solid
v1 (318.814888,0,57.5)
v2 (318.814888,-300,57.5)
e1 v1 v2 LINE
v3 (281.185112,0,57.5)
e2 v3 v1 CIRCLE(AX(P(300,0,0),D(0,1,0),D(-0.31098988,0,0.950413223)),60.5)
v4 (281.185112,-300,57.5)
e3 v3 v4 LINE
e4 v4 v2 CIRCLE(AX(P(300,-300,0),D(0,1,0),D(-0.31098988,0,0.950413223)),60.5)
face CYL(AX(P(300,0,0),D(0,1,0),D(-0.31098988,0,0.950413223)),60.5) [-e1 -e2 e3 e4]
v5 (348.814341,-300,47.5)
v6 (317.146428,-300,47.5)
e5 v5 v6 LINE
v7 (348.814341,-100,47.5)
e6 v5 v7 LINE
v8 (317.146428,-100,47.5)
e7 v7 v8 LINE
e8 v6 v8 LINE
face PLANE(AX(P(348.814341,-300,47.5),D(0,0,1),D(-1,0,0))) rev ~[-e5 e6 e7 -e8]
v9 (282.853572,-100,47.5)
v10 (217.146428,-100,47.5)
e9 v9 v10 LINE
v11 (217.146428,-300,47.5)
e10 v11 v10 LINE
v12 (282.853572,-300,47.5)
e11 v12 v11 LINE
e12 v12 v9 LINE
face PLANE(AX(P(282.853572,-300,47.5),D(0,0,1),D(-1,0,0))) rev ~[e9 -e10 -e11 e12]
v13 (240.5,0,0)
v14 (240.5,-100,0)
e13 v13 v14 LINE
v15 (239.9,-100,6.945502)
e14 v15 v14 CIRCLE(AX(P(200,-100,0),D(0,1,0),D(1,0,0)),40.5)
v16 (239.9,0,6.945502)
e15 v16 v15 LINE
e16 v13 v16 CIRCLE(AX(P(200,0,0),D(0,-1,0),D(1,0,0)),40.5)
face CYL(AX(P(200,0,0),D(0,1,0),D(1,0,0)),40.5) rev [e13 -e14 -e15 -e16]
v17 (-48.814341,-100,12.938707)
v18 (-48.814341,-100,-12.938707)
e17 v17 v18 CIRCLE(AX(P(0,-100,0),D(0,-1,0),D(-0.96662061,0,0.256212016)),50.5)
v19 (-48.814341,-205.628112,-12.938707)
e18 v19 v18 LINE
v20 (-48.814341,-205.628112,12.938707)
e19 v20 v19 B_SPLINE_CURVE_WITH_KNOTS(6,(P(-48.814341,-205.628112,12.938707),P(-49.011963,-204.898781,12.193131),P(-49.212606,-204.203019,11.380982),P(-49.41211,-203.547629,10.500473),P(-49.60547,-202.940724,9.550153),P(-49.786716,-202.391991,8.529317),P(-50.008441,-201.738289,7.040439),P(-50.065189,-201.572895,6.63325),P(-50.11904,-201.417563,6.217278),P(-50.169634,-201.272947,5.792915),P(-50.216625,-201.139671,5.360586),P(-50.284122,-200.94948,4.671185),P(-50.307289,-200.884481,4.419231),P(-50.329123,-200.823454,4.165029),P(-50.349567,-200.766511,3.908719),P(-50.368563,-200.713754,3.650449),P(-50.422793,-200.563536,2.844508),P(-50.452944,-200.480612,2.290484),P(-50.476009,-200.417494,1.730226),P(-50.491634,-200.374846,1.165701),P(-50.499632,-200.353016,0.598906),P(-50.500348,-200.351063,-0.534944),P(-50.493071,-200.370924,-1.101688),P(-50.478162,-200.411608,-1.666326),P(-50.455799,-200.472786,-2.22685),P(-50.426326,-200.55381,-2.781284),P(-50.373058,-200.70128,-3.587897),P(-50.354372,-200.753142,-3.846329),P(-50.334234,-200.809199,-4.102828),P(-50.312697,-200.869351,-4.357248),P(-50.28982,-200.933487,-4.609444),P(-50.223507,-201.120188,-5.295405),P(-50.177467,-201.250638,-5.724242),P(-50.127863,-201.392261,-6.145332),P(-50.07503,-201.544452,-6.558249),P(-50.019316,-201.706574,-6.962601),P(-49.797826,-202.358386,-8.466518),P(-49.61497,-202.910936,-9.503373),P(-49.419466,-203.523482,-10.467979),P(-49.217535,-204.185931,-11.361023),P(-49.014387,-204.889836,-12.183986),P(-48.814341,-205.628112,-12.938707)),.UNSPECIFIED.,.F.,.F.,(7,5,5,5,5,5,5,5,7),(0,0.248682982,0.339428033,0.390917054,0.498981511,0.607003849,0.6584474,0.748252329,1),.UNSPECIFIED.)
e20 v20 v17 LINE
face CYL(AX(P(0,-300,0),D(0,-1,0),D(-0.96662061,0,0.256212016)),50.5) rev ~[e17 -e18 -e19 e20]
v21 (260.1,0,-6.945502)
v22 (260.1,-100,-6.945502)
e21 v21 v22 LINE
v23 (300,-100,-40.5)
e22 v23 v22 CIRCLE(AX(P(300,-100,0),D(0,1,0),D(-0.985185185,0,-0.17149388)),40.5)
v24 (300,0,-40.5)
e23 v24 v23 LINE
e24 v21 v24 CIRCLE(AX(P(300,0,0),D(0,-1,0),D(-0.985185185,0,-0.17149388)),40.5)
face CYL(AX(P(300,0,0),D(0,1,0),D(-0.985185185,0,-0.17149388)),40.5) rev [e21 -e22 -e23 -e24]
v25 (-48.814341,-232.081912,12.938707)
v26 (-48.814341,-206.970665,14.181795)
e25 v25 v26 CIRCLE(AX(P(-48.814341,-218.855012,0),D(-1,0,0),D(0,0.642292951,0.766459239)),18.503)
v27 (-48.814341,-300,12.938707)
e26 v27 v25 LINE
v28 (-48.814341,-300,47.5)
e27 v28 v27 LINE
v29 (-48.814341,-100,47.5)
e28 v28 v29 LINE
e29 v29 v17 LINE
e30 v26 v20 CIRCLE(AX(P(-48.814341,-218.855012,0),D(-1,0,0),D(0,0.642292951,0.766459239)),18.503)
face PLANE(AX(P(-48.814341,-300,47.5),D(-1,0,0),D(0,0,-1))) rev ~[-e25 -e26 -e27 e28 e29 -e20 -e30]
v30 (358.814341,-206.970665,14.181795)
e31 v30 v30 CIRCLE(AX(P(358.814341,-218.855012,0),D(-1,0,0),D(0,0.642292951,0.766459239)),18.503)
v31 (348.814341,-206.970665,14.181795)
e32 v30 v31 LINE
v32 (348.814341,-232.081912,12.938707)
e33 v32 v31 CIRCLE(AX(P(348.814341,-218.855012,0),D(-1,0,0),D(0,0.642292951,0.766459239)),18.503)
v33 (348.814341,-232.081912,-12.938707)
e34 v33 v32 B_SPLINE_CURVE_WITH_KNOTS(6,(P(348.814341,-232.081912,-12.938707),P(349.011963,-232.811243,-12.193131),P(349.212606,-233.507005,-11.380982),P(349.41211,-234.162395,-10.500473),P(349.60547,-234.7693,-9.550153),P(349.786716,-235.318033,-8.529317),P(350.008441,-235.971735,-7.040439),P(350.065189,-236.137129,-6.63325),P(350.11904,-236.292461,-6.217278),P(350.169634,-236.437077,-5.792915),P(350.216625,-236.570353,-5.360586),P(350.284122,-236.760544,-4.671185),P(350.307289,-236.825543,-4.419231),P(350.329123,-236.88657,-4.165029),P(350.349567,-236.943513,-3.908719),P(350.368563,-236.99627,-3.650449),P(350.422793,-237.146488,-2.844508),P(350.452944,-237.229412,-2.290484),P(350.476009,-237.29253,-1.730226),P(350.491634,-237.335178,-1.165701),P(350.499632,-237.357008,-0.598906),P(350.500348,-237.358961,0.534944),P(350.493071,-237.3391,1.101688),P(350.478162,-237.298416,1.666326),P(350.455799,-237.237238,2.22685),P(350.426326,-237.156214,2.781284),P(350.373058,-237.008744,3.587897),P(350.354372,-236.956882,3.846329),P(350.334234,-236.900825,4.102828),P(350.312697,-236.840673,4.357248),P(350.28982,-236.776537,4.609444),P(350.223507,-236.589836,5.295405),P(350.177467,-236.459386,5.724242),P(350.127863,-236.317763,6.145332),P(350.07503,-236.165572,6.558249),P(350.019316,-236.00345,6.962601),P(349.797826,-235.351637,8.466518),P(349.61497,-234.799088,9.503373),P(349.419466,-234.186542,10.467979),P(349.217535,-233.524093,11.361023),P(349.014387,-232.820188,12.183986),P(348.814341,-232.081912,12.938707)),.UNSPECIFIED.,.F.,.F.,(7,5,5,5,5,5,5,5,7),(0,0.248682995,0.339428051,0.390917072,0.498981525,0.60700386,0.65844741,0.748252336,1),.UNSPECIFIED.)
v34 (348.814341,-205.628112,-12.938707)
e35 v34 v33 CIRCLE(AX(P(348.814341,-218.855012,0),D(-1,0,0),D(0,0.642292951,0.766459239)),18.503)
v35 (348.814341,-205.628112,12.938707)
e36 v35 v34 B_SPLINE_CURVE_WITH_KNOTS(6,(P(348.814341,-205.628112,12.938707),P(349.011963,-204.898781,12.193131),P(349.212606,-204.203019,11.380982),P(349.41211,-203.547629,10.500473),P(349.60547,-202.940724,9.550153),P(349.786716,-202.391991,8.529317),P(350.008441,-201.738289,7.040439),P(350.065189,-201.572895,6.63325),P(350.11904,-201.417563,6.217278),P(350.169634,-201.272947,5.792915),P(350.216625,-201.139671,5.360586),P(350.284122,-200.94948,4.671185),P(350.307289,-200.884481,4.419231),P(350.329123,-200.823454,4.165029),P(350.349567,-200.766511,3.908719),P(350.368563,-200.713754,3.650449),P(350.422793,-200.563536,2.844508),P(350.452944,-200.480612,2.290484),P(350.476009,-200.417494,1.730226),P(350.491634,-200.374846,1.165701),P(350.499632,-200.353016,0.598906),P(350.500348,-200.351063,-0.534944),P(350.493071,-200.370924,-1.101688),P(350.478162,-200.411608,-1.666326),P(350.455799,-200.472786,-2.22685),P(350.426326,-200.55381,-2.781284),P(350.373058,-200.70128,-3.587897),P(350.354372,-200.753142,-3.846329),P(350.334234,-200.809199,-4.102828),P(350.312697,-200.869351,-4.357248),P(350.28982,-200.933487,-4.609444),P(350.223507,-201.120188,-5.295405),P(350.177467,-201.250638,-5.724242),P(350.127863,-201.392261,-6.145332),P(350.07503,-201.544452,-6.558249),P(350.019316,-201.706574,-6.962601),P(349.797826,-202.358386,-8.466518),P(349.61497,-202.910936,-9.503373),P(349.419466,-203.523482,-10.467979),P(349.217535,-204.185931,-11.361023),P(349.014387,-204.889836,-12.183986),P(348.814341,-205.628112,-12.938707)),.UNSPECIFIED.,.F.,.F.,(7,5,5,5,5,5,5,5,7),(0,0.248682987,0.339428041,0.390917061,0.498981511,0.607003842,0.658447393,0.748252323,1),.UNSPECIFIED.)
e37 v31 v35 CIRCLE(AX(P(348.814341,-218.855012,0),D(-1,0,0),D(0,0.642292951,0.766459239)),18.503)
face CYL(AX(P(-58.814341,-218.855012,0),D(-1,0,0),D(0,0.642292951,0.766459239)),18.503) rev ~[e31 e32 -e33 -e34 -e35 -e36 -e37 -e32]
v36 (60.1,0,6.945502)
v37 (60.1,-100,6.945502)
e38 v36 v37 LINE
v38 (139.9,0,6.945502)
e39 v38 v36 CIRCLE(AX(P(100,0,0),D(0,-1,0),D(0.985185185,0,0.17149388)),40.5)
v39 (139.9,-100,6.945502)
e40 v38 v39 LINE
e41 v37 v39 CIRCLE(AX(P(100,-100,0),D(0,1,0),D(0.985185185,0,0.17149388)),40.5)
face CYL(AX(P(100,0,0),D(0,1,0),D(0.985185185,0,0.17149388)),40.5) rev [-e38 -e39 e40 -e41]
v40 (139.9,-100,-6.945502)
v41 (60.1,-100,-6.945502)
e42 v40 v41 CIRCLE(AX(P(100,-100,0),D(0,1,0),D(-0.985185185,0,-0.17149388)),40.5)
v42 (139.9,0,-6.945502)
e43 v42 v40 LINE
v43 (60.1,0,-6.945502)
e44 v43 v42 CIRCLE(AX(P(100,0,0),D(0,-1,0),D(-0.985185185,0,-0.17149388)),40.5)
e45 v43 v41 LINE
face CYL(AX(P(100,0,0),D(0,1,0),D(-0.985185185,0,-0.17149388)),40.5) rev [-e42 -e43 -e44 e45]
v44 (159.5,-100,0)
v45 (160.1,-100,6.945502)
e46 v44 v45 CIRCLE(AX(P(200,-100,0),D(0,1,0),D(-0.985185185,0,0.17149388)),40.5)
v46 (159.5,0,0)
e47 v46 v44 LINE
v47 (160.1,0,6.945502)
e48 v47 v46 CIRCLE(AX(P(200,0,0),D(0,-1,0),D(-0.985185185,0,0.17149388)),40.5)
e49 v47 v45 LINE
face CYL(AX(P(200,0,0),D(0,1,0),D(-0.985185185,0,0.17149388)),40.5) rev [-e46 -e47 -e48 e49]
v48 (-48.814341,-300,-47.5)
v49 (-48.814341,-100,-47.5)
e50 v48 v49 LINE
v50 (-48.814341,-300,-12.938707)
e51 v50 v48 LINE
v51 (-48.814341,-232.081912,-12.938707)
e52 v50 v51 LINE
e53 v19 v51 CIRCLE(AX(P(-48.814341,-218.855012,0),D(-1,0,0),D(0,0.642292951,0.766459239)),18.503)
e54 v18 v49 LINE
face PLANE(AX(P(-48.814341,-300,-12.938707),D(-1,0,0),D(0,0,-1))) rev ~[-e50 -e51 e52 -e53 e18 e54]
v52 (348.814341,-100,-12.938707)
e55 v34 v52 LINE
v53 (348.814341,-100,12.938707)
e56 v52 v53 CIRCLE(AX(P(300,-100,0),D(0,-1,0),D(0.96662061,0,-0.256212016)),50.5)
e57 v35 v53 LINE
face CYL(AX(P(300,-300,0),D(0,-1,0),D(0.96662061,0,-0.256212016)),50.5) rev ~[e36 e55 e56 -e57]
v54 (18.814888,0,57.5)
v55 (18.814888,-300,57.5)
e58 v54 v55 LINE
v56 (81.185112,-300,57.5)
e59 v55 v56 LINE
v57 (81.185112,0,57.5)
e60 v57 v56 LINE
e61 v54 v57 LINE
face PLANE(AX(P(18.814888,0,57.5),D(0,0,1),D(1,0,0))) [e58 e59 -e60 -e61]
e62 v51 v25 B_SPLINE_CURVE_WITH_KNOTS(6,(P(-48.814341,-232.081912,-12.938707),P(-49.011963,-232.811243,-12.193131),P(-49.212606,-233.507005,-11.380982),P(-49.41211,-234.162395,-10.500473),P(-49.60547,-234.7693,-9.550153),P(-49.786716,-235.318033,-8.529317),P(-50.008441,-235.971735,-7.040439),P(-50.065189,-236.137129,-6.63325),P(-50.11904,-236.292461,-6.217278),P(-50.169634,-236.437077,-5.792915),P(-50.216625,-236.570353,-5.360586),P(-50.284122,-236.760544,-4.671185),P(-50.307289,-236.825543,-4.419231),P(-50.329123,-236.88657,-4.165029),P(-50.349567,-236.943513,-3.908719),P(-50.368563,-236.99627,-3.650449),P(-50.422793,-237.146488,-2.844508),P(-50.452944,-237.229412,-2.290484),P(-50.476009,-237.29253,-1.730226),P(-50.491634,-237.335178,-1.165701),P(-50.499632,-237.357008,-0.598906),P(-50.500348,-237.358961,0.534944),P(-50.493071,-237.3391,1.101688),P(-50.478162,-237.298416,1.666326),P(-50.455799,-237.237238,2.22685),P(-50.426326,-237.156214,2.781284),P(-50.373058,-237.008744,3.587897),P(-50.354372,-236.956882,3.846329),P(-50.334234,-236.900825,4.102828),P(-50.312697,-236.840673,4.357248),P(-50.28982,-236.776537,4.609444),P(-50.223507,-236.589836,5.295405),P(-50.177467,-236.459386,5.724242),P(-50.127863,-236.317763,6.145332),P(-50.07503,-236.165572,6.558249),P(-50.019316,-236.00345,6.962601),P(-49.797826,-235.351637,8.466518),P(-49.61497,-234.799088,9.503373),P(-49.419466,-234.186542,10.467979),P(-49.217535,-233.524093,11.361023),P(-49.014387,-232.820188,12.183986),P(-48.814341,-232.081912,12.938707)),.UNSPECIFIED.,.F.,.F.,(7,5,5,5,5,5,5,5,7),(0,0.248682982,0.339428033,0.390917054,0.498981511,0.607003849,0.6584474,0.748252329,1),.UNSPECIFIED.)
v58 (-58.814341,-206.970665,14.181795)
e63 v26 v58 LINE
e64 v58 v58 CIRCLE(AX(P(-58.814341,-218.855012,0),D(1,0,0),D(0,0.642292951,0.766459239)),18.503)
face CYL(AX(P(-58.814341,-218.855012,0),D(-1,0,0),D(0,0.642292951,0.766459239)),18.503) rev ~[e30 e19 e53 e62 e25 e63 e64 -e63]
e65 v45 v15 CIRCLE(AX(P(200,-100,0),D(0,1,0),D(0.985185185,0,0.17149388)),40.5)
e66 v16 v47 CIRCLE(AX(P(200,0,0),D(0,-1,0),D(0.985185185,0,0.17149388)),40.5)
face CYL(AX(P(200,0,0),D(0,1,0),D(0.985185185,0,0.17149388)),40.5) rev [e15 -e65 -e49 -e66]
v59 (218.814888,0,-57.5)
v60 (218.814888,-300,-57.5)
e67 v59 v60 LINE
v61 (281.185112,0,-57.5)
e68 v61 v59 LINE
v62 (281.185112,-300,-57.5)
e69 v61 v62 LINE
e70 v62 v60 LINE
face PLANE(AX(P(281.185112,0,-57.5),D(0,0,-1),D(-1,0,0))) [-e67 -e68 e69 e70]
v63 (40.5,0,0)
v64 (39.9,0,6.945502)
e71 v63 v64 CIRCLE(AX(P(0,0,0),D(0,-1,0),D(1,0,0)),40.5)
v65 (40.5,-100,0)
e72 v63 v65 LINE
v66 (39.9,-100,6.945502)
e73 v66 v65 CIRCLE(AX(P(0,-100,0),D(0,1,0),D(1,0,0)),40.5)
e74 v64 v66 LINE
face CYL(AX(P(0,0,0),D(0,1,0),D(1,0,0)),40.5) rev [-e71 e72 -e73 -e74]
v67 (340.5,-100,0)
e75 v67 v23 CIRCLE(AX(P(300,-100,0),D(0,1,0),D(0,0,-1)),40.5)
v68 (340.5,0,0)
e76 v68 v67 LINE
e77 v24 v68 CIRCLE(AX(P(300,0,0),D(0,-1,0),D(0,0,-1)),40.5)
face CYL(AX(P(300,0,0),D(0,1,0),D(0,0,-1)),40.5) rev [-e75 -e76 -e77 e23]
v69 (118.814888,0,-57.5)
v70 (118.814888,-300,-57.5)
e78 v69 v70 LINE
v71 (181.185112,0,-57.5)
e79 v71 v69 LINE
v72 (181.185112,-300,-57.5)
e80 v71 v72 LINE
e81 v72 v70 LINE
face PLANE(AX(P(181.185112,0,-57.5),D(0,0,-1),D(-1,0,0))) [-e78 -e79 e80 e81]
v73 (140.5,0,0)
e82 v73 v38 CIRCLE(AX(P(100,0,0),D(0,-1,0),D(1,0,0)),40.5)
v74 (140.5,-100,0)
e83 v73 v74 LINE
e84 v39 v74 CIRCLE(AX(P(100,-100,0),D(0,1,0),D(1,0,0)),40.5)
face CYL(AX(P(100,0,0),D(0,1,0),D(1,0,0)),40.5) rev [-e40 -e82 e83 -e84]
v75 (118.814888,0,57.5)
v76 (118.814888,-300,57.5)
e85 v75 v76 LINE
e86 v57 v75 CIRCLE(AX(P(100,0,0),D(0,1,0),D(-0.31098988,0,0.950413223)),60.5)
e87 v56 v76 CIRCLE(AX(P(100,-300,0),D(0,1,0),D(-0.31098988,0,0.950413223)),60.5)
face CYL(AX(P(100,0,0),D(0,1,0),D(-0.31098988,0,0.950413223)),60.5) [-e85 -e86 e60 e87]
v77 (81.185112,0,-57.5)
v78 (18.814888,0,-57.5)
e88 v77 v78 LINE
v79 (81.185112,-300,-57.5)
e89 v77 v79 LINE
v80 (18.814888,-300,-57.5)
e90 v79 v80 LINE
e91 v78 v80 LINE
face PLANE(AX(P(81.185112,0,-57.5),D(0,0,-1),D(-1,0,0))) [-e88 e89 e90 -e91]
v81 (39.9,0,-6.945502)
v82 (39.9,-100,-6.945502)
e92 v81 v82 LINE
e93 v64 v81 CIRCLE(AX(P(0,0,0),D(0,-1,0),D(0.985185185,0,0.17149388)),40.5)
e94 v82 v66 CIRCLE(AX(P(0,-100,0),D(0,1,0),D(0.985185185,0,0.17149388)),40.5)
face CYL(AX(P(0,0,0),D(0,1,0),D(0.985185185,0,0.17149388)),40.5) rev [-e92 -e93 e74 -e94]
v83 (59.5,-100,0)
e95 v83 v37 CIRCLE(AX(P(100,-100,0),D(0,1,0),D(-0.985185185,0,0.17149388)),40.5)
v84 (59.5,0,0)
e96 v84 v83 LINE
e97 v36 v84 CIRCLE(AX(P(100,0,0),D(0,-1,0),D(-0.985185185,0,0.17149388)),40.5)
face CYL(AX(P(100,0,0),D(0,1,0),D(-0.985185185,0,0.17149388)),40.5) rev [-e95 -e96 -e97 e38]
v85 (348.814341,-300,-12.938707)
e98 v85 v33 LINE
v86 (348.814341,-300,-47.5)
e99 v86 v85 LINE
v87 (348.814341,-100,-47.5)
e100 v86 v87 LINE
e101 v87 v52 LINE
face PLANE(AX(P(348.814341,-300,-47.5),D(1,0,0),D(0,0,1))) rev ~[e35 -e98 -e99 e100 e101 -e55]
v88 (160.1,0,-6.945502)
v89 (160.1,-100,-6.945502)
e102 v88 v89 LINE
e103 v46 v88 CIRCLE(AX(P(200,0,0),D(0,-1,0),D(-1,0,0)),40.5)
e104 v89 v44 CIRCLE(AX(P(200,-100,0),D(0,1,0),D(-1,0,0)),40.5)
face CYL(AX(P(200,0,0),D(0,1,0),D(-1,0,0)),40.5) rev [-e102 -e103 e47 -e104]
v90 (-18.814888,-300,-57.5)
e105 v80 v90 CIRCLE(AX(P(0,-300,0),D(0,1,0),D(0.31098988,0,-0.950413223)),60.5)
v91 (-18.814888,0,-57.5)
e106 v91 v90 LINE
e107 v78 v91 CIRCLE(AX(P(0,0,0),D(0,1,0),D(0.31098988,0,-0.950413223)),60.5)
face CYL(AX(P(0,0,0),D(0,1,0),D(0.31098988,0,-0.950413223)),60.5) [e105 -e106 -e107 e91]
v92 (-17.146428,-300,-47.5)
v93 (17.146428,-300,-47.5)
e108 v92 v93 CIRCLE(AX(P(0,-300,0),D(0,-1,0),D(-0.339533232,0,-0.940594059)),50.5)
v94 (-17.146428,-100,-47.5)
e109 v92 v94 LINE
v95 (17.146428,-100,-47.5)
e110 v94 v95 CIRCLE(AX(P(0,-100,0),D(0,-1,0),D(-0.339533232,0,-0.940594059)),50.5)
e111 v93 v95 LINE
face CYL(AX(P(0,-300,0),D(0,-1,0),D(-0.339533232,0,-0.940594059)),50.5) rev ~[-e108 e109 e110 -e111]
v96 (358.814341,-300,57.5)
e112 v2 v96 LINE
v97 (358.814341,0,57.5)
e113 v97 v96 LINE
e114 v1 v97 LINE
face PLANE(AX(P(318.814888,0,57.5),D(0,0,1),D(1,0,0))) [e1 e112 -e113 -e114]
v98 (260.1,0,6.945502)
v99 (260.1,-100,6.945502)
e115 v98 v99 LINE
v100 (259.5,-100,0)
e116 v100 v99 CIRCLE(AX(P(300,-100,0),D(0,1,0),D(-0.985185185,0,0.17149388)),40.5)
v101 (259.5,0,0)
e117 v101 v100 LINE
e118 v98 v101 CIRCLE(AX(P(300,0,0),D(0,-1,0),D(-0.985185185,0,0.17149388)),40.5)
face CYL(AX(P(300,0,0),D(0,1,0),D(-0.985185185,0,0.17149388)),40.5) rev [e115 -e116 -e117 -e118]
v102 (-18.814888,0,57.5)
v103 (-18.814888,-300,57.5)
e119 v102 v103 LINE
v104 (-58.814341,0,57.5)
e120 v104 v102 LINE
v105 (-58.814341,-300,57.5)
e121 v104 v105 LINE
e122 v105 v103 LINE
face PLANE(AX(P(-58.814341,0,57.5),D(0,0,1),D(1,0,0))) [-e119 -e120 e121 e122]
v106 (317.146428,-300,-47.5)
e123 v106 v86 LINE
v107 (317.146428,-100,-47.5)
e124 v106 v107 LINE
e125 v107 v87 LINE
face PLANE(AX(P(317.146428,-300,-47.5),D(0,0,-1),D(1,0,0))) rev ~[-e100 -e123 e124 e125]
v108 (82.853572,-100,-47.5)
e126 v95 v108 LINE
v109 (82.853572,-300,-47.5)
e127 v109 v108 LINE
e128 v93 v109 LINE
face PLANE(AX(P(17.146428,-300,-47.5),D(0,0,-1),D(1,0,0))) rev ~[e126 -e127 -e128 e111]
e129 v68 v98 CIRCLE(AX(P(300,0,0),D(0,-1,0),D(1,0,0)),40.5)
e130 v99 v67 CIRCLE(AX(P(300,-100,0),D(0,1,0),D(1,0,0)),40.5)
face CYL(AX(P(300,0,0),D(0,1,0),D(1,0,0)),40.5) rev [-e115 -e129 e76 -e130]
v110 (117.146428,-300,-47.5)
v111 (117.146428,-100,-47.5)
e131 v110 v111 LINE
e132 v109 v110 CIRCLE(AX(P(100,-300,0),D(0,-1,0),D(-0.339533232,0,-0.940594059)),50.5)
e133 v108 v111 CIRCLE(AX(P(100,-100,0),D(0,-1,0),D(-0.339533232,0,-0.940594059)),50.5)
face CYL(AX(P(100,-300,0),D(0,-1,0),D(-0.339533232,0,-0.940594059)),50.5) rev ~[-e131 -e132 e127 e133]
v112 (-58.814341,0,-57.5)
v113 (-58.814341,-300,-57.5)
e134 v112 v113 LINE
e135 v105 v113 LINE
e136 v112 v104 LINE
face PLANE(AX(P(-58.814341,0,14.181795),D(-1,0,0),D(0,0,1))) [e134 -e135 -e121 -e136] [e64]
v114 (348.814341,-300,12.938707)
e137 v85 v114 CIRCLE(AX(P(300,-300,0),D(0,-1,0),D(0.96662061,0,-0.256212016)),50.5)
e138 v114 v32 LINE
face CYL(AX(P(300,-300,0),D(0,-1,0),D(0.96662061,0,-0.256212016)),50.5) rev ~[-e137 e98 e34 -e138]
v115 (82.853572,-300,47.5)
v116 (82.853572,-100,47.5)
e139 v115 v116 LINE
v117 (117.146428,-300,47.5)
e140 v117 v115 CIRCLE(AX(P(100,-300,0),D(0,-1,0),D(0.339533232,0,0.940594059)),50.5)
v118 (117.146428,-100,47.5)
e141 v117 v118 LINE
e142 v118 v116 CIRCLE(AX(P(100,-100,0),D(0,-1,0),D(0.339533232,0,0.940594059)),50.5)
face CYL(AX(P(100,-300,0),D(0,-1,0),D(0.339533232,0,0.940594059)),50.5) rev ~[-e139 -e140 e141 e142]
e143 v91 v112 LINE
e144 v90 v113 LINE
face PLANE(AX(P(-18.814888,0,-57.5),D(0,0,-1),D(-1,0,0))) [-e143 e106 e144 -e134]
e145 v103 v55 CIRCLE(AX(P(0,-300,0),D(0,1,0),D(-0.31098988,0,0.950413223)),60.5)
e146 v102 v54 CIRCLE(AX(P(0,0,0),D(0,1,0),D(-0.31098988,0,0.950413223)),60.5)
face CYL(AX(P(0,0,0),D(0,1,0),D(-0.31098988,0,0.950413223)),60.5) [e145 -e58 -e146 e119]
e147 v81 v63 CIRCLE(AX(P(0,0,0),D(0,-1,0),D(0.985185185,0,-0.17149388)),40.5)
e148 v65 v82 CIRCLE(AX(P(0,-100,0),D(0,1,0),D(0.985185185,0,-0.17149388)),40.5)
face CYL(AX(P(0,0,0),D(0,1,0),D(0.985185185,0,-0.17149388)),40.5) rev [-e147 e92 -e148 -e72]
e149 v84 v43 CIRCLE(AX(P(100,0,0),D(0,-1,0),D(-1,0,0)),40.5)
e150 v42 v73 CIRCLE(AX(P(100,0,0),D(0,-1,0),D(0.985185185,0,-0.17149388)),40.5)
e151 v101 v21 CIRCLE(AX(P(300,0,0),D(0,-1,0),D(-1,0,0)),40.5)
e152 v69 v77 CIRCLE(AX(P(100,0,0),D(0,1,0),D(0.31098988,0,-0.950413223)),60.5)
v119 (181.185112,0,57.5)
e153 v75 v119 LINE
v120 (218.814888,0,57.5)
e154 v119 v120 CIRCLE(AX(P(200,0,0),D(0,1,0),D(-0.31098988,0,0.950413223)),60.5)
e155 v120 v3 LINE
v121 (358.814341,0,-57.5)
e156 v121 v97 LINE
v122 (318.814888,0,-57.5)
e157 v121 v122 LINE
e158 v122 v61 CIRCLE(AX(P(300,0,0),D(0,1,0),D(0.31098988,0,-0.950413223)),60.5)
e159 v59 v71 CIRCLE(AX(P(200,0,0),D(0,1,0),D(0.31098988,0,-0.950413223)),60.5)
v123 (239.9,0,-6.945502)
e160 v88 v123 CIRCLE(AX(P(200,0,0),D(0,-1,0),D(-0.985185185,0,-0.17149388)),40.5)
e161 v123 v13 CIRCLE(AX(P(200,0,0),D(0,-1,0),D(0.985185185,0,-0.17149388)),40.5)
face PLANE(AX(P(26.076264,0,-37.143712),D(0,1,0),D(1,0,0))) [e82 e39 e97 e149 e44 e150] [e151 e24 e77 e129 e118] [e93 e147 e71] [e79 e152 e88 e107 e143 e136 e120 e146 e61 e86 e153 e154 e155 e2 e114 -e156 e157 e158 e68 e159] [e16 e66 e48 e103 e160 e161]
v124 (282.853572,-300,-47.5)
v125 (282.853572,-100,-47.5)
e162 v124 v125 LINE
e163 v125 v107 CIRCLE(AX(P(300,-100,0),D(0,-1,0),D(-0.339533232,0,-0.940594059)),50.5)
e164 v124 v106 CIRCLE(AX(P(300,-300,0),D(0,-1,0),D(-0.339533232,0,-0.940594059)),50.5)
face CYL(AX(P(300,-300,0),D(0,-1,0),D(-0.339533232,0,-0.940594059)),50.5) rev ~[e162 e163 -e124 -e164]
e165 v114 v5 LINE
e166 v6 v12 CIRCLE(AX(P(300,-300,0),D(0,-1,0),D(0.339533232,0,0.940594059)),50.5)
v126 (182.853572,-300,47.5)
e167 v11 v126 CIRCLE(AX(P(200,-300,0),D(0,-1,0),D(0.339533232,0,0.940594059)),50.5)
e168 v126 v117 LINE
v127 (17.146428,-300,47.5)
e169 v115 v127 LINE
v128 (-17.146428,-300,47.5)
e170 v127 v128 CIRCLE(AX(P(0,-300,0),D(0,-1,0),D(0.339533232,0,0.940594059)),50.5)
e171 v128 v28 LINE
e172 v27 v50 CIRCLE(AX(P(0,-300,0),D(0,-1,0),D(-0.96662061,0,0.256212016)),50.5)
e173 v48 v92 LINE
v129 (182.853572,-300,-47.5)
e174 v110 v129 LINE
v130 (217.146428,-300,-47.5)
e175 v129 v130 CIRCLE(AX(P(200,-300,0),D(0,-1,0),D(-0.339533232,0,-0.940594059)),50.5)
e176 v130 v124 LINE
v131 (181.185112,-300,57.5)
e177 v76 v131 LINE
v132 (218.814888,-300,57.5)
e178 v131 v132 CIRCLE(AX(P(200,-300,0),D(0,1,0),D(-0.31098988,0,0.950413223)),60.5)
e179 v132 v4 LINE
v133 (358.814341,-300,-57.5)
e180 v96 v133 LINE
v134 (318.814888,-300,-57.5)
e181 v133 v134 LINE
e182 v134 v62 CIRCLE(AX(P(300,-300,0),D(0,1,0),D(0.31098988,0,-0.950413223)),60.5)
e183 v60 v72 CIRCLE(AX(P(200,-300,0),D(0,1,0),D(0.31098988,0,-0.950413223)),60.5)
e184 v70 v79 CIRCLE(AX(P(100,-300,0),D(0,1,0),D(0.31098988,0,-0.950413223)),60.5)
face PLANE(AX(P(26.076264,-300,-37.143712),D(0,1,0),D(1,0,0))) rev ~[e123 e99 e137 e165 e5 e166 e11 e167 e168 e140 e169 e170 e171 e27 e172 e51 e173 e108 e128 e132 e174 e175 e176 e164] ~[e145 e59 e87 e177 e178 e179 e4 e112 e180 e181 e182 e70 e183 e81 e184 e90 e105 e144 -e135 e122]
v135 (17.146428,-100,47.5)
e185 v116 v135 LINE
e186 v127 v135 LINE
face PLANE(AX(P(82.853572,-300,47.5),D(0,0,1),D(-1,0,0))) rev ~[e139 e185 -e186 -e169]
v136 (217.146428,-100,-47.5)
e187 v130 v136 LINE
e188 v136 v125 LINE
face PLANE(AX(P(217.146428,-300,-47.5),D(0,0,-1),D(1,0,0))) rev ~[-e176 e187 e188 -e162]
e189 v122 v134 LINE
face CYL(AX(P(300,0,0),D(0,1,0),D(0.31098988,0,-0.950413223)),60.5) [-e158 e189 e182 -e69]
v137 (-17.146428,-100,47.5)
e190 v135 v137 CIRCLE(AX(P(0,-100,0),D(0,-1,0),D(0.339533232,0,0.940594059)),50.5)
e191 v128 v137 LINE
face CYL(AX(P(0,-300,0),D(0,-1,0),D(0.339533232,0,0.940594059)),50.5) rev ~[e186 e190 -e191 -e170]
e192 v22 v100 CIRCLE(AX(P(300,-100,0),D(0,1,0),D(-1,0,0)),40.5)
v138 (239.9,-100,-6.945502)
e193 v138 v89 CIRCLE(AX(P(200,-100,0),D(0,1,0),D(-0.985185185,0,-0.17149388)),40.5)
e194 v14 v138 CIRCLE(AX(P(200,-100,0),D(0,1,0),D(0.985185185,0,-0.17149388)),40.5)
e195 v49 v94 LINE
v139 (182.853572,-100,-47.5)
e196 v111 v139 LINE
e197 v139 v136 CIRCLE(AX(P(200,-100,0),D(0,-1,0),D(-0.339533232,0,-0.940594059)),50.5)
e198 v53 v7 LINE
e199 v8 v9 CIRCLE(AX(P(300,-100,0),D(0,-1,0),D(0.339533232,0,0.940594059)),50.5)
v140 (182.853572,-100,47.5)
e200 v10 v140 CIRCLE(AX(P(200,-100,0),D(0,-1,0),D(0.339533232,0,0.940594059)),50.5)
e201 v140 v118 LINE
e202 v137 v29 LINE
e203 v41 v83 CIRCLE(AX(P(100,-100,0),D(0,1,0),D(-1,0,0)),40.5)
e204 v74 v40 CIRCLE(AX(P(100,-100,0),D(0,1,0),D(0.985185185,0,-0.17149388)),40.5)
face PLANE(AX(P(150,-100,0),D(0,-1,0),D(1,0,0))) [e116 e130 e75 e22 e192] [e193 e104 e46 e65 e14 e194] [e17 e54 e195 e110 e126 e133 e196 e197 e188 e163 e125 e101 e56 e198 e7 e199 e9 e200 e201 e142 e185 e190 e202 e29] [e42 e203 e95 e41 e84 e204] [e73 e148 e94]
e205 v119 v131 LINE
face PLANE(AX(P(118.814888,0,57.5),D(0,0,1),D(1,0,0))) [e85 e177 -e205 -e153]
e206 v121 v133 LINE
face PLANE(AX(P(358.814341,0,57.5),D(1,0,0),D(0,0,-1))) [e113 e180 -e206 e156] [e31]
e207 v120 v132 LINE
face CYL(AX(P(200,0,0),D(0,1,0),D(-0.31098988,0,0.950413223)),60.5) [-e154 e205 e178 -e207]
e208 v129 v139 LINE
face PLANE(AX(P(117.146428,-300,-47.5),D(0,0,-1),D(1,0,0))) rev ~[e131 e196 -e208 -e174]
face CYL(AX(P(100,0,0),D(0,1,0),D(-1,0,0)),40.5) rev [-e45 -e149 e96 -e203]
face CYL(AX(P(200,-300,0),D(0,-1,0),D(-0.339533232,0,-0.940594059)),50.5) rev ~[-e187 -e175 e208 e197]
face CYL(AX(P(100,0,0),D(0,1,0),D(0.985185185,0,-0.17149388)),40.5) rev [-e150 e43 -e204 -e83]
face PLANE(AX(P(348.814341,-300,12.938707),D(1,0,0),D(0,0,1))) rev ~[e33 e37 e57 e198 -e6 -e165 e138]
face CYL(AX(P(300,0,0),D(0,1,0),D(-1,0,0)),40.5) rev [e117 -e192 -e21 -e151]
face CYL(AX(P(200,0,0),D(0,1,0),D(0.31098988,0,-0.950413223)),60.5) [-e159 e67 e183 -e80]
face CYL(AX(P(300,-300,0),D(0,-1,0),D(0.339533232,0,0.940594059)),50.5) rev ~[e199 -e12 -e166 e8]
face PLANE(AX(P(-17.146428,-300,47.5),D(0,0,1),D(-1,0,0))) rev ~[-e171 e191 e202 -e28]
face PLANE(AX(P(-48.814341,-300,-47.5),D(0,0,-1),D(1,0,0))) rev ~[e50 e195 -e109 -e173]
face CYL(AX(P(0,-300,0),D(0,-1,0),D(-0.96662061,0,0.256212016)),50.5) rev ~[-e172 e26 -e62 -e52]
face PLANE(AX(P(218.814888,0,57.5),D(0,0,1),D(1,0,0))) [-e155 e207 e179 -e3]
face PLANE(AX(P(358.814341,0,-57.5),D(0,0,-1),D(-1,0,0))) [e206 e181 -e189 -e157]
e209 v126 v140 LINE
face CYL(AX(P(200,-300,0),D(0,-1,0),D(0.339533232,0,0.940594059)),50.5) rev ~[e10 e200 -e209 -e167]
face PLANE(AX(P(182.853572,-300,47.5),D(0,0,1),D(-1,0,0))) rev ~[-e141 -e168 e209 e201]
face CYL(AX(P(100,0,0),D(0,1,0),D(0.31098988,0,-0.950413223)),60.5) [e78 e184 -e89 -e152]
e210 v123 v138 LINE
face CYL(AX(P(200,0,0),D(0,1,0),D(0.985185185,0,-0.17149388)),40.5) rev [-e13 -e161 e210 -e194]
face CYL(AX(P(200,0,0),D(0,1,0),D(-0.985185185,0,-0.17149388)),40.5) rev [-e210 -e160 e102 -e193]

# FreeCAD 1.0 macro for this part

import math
import FreeCAD as App
import Part
import Sketcher

doc = App.newDocument("Part")
body = doc.addObject("PartDesign::Body", "Body")

# Sketch on XZ plane
sketch1 = body.newObject("Sketcher::SketchObject", "Sketch")
sketch1.AttachmentSupport = (doc.getObject("XZ_Plane"), [""])
sketch1.MapMode = "FlatFace"
sketch1.addGeometry([
    Part.LineSegment(App.Vector(358.814341, 57.5, 0), App.Vector(358.814341, 14.181795, 0)),  # 0
    Part.ArcOfCircle(Part.Circle(App.Vector(300, 0, 0), App.Vector(0, 0, 1), 60.5), math.radians(0), math.radians(13.556837)),  # 1
    Part.ArcOfCircle(Part.Circle(App.Vector(300, 0, 0), App.Vector(0, 0, 1), 60.5), math.radians(-13.556837), math.radians(0)),  # 2
    Part.LineSegment(App.Vector(358.814341, -14.181795, 0), App.Vector(358.814341, -57.5, 0)),  # 3
    Part.LineSegment(App.Vector(358.814341, -57.5, 0), App.Vector(318.814888, -57.5, 0)),  # 4
    Part.ArcOfCircle(Part.Circle(App.Vector(300, 0, 0), App.Vector(0, 0, 1), 60.5), math.radians(-108.118895), math.radians(-71.881105)),  # 5
    Part.LineSegment(App.Vector(281.185112, -57.5, 0), App.Vector(218.814888, -57.5, 0)),  # 6
    Part.ArcOfCircle(Part.Circle(App.Vector(200, 0, 0), App.Vector(0, 0, 1), 60.5), math.radians(-108.118895), math.radians(-71.881105)),  # 7
    Part.LineSegment(App.Vector(181.185112, -57.5, 0), App.Vector(118.814888, -57.5, 0)),  # 8
    Part.ArcOfCircle(Part.Circle(App.Vector(100, 0, 0), App.Vector(0, 0, 1), 60.5), math.radians(-108.118895), math.radians(-71.881105)),  # 9
    Part.LineSegment(App.Vector(81.185112, -57.5, 0), App.Vector(18.814888, -57.5, 0)),  # 10
    Part.ArcOfCircle(Part.Circle(App.Vector(0, 0, 0), App.Vector(0, 0, 1), 60.5), math.radians(-108.118895), math.radians(-71.881105)),  # 11
    Part.LineSegment(App.Vector(-18.814888, -57.5, 0), App.Vector(-58.814341, -57.5, 0)),  # 12
    Part.LineSegment(App.Vector(-58.814341, -57.5, 0), App.Vector(-58.814341, -14.181795, 0)),  # 13
    Part.ArcOfCircle(Part.Circle(App.Vector(0, 0, 0), App.Vector(0, 0, 1), 60.5), math.radians(166.443163), math.radians(193.556837)),  # 14
    Part.LineSegment(App.Vector(-58.814341, 14.181795, 0), App.Vector(-58.814341, 57.5, 0)),  # 15
    Part.LineSegment(App.Vector(-58.814341, 57.5, 0), App.Vector(-18.814888, 57.5, 0)),  # 16
    Part.ArcOfCircle(Part.Circle(App.Vector(0, 0, 0), App.Vector(0, 0, 1), 60.5), math.radians(71.881105), math.radians(108.118895)),  # 17
    Part.LineSegment(App.Vector(18.814888, 57.5, 0), App.Vector(81.185112, 57.5, 0)),  # 18
    Part.ArcOfCircle(Part.Circle(App.Vector(100, 0, 0), App.Vector(0, 0, 1), 60.5), math.radians(71.881105), math.radians(108.118895)),  # 19
    Part.LineSegment(App.Vector(118.814888, 57.5, 0), App.Vector(181.185112, 57.5, 0)),  # 20
    Part.ArcOfCircle(Part.Circle(App.Vector(200, 0, 0), App.Vector(0, 0, 1), 60.5), math.radians(71.881105), math.radians(108.118895)),  # 21
    Part.LineSegment(App.Vector(218.814888, 57.5, 0), App.Vector(281.185112, 57.5, 0)),  # 22
    Part.ArcOfCircle(Part.Circle(App.Vector(300, 0, 0), App.Vector(0, 0, 1), 60.5), math.radians(71.881105), math.radians(108.118895)),  # 23
    Part.LineSegment(App.Vector(318.814888, 57.5, 0), App.Vector(358.814341, 57.5, 0)),  # 24
    Part.ArcOfCircle(Part.Circle(App.Vector(300, 0, 0), App.Vector(0, 0, 1), 40.5), math.radians(170.125312), math.radians(180)),  # 25
    Part.ArcOfCircle(Part.Circle(App.Vector(300, 0, 0), App.Vector(0, 0, 1), 40.5), math.radians(180), math.radians(189.874688)),  # 26
    Part.ArcOfCircle(Part.Circle(App.Vector(300, 0, 0), App.Vector(0, 0, 1), 40.5), math.radians(-170.125312), math.radians(-90)),  # 27
    Part.ArcOfCircle(Part.Circle(App.Vector(300, 0, 0), App.Vector(0, 0, 1), 40.5), math.radians(-90), math.radians(0)),  # 28
    Part.ArcOfCircle(Part.Circle(App.Vector(300, 0, 0), App.Vector(0, 0, 1), 40.5), math.radians(0), math.radians(170.125312)),  # 29
    Part.ArcOfCircle(Part.Circle(App.Vector(200, 0, 0), App.Vector(0, 0, 1), 40.5), math.radians(-9.874688), math.radians(0)),  # 30
    Part.ArcOfCircle(Part.Circle(App.Vector(200, 0, 0), App.Vector(0, 0, 1), 40.5), math.radians(0), math.radians(9.874688)),  # 31
    Part.ArcOfCircle(Part.Circle(App.Vector(200, 0, 0), App.Vector(0, 0, 1), 40.5), math.radians(9.874688), math.radians(170.125312)),  # 32
    Part.ArcOfCircle(Part.Circle(App.Vector(200, 0, 0), App.Vector(0, 0, 1), 40.5), math.radians(170.125312), math.radians(180)),  # 33
    Part.ArcOfCircle(Part.Circle(App.Vector(200, 0, 0), App.Vector(0, 0, 1), 40.5), math.radians(180), math.radians(189.874688)),  # 34
    Part.ArcOfCircle(Part.Circle(App.Vector(200, 0, 0), App.Vector(0, 0, 1), 40.5), math.radians(-170.125312), math.radians(-9.874688)),  # 35
    Part.ArcOfCircle(Part.Circle(App.Vector(100, 0, 0), App.Vector(0, 0, 1), 40.5), math.radians(9.874688), math.radians(170.125312)),  # 36
    Part.ArcOfCircle(Part.Circle(App.Vector(100, 0, 0), App.Vector(0, 0, 1), 40.5), math.radians(170.125312), math.radians(180)),  # 37
    Part.ArcOfCircle(Part.Circle(App.Vector(100, 0, 0), App.Vector(0, 0, 1), 40.5), math.radians(180), math.radians(189.874688)),  # 38
    Part.ArcOfCircle(Part.Circle(App.Vector(100, 0, 0), App.Vector(0, 0, 1), 40.5), math.radians(-170.125312), math.radians(-9.874688)),  # 39
    Part.ArcOfCircle(Part.Circle(App.Vector(100, 0, 0), App.Vector(0, 0, 1), 40.5), math.radians(-9.874688), math.radians(0)),  # 40
    Part.ArcOfCircle(Part.Circle(App.Vector(100, 0, 0), App.Vector(0, 0, 1), 40.5), math.radians(0), math.radians(9.874688)),  # 41
    Part.ArcOfCircle(Part.Circle(App.Vector(0, 0, 0), App.Vector(0, 0, 1), 40.5), math.radians(-9.874688), math.radians(0)),  # 42
    Part.ArcOfCircle(Part.Circle(App.Vector(0, 0, 0), App.Vector(0, 0, 1), 40.5), math.radians(0), math.radians(9.874688)),  # 43
    Part.ArcOfCircle(Part.Circle(App.Vector(0, 0, 0), App.Vector(0, 0, 1), 40.5), math.radians(9.874688), math.radians(350.125312)),  # 44
], False)
sketch1.addConstraint([
    Sketcher.Constraint("Coincident", 0, 2, 1, 2),
    Sketcher.Constraint("Tangent", 1, 1, 2, 2),
    Sketcher.Constraint("Coincident", 2, 1, 3, 1),
    Sketcher.Constraint("Coincident", 3, 2, 4, 1),
    Sketcher.Constraint("Coincident", 4, 2, 5, 2),
    Sketcher.Constraint("Coincident", 5, 1, 6, 1),
    Sketcher.Constraint("Coincident", 6, 2, 7, 2),
    Sketcher.Constraint("Coincident", 7, 1, 8, 1),
    Sketcher.Constraint("Coincident", 8, 2, 9, 2),
    Sketcher.Constraint("Coincident", 9, 1, 10, 1),
    Sketcher.Constraint("Coincident", 10, 2, 11, 2),
    Sketcher.Constraint("Coincident", 11, 1, 12, 1),
    Sketcher.Constraint("Coincident", 12, 2, 13, 1),
    Sketcher.Constraint("Coincident", 13, 2, 14, 2),
    Sketcher.Constraint("Coincident", 14, 1, 15, 1),
    Sketcher.Constraint("Coincident", 15, 2, 16, 1),
    Sketcher.Constraint("Coincident", 16, 2, 17, 2),
    Sketcher.Constraint("Coincident", 17, 1, 18, 1),
    Sketcher.Constraint("Coincident", 18, 2, 19, 2),
    Sketcher.Constraint("Coincident", 19, 1, 20, 1),
    Sketcher.Constraint("Coincident", 20, 2, 21, 2),
    Sketcher.Constraint("Coincident", 21, 1, 22, 1),
    Sketcher.Constraint("Coincident", 22, 2, 23, 2),
    Sketcher.Constraint("Coincident", 23, 1, 24, 1),
    Sketcher.Constraint("Coincident", 24, 2, 0, 1),
    Sketcher.Constraint("Tangent", 25, 2, 26, 1),
    Sketcher.Constraint("Tangent", 26, 2, 27, 1),
    Sketcher.Constraint("Tangent", 27, 2, 28, 1),
    Sketcher.Constraint("Tangent", 28, 2, 29, 1),
    Sketcher.Constraint("Tangent", 29, 2, 25, 1),
    Sketcher.Constraint("Tangent", 30, 2, 31, 1),
    Sketcher.Constraint("Tangent", 31, 2, 32, 1),
    Sketcher.Constraint("Tangent", 32, 2, 33, 1),
    Sketcher.Constraint("Tangent", 33, 2, 34, 1),
    Sketcher.Constraint("Tangent", 34, 2, 35, 1),
    Sketcher.Constraint("Tangent", 35, 2, 30, 1),
    Sketcher.Constraint("Tangent", 36, 2, 37, 1),
    Sketcher.Constraint("Tangent", 37, 2, 38, 1),
    Sketcher.Constraint("Tangent", 38, 2, 39, 1),
    Sketcher.Constraint("Tangent", 39, 2, 40, 1),
    Sketcher.Constraint("Tangent", 40, 2, 41, 1),
    Sketcher.Constraint("Tangent", 41, 2, 36, 1),
    Sketcher.Constraint("Tangent", 42, 2, 43, 1),
    Sketcher.Constraint("Tangent", 43, 2, 44, 1),
    Sketcher.Constraint("Coincident", 44, 2, 42, 1),
    Sketcher.Constraint("Vertical", 0),
    Sketcher.Constraint("Vertical", 3),
    Sketcher.Constraint("Horizontal", 4),
    Sketcher.Constraint("Horizontal", 6),
    Sketcher.Constraint("Horizontal", 8),
    Sketcher.Constraint("Horizontal", 10),
    Sketcher.Constraint("Horizontal", 12),
    Sketcher.Constraint("Vertical", 13),
    Sketcher.Constraint("Vertical", 15),
    Sketcher.Constraint("Horizontal", 16),
    Sketcher.Constraint("Horizontal", 18),
    Sketcher.Constraint("Horizontal", 20),
    Sketcher.Constraint("Horizontal", 22),
    Sketcher.Constraint("Horizontal", 24),
    Sketcher.Constraint("Coincident", 11, 3, -1, 1),
    Sketcher.Constraint("Coincident", 14, 3, -1, 1),
    Sketcher.Constraint("Coincident", 17, 3, -1, 1),
    Sketcher.Constraint("Coincident", 42, 3, -1, 1),
    Sketcher.Constraint("Coincident", 5, 3, 1, 3),
    Sketcher.Constraint("Coincident", 19, 3, 9, 3),
    Sketcher.Constraint("Coincident", 21, 3, 7, 3),
    Sketcher.Constraint("Coincident", 23, 3, 1, 3),
    Sketcher.Constraint("Coincident", 25, 3, 1, 3),
    Sketcher.Constraint("Coincident", 27, 3, 1, 3),
    Sketcher.Constraint("Coincident", 30, 3, 7, 3),
    Sketcher.Constraint("Coincident", 32, 3, 7, 3),
    Sketcher.Constraint("Coincident", 36, 3, 9, 3),
    Sketcher.Constraint("Coincident", 38, 3, 9, 3),
    Sketcher.Constraint("Equal", 1, 2),
    Sketcher.Constraint("Equal", 2, 5),
    Sketcher.Constraint("Equal", 5, 7),
    Sketcher.Constraint("Equal", 7, 9),
    Sketcher.Constraint("Equal", 9, 11),
    Sketcher.Constraint("Equal", 11, 14),
    Sketcher.Constraint("Equal", 14, 17),
    Sketcher.Constraint("Equal", 17, 19),
    Sketcher.Constraint("Equal", 19, 21),
    Sketcher.Constraint("Equal", 21, 23),
    Sketcher.Constraint("Equal", 29, 30),
    Sketcher.Constraint("Equal", 32, 33),
    Sketcher.Constraint("Equal", 35, 36),
    Sketcher.Constraint("Equal", 38, 39),
    Sketcher.Constraint("Equal", 41, 42),
    Sketcher.Constraint("Equal", 42, 43),
    Sketcher.Constraint("Symmetric", 0, 2, 2, 1, -1),
    Sketcher.Constraint("Symmetric", 12, 2, 15, 2, -1),
    Sketcher.Constraint("Symmetric", 9, 1, 18, 2, -1),
    Sketcher.Constraint("Symmetric", 7, 1, 20, 2, -1),
    Sketcher.Constraint("PointOnObject", 1, 1, -1),
    Sketcher.Constraint("PointOnObject", 25, 2, -1),
    Sketcher.Constraint("PointOnObject", 28, 2, -1),
    Sketcher.Constraint("PointOnObject", 30, 2, -1),
    Sketcher.Constraint("PointOnObject", 33, 2, -1),
    Sketcher.Constraint("PointOnObject", 37, 2, -1),
    Sketcher.Constraint("PointOnObject", 40, 2, -1),
    Sketcher.Constraint("PointOnObject", 42, 2, -1),
    Sketcher.Constraint("Horizontal", 4, 2, 5, 1),
    Sketcher.Constraint("Horizontal", 6, 2, 7, 1),
    Sketcher.Constraint("Horizontal", 8, 2, 9, 1),
    Sketcher.Constraint("Horizontal", 10, 2, 11, 1),
    Sketcher.Constraint("Horizontal", 2, 1, 13, 2),
    Sketcher.Constraint("Horizontal", 20, 2, 21, 1),
    Sketcher.Constraint("Horizontal", 22, 2, 23, 1),
    Sketcher.Constraint("Horizontal", 29, 2, 31, 2),
    Sketcher.Constraint("Horizontal", 31, 2, 32, 2),
    Sketcher.Constraint("Horizontal", 26, 2, 34, 2),
    Sketcher.Constraint("Horizontal", 34, 2, 35, 2),
    Sketcher.Constraint("Horizontal", 32, 2, 36, 2),
    Sketcher.Constraint("Horizontal", 35, 2, 38, 2),
    Sketcher.Constraint("Horizontal", 38, 2, 39, 2),
    Sketcher.Constraint("Horizontal", 36, 2, 41, 2),
    Sketcher.Constraint("Horizontal", 41, 2, 43, 2),
    Sketcher.Constraint("Horizontal", 39, 2, 44, 2),
    Sketcher.Constraint("Vertical", 29, 3, 27, 2),
    Sketcher.Constraint("Vertical", 26, 2, 29, 2),
    Sketcher.Constraint("Equal", 6, 8),
    Sketcher.Constraint("Equal", 8, 10),
    Sketcher.Constraint("Radius", 1, 60.5),
    Sketcher.Constraint("Radius", 25, 40.5),
    Sketcher.Constraint("DistanceX", -1, 1, 1, 3, 300.0),
    Sketcher.Constraint("DistanceY", 3, 2, -1, 1, 57.5),
    Sketcher.Constraint("DistanceX", -1, 1, 26, 2, 260.1),
    Sketcher.Constraint("DistanceX", 4, 2, 4, 1, 39.999453),
])
pad1 = body.newObject("PartDesign::Pad", "Pad")
pad1.Profile = sketch1
pad1.Length = 300

# Sketch on XZ plane
sketch2 = body.newObject("Sketcher::SketchObject", "Sketch001")
sketch2.AttachmentSupport = (doc.getObject("XZ_Plane"), [""])
sketch2.MapMode = "FlatFace"
sketch2.AttachmentOffset = App.Placement(App.Vector(0, 0, 300), App.Rotation())
sketch2.addGeometry([
    Part.LineSegment(App.Vector(-48.814341, 47.5, 0), App.Vector(-48.814341, 12.938707, 0)),  # 0
    Part.ArcOfCircle(Part.Circle(App.Vector(0, 0, 0), App.Vector(0, 0, 1), 50.5), math.radians(165.154585), math.radians(194.845415)),  # 1
    Part.LineSegment(App.Vector(-48.814341, -12.938707, 0), App.Vector(-48.814341, -47.5, 0)),  # 2
    Part.LineSegment(App.Vector(-48.814341, -47.5, 0), App.Vector(-17.146428, -47.5, 0)),  # 3
    Part.ArcOfCircle(Part.Circle(App.Vector(0, 0, 0), App.Vector(0, 0, 1), 50.5), math.radians(-109.848439), math.radians(-70.151561)),  # 4
    Part.LineSegment(App.Vector(17.146428, -47.5, 0), App.Vector(82.853572, -47.5, 0)),  # 5
    Part.ArcOfCircle(Part.Circle(App.Vector(100, 0, 0), App.Vector(0, 0, 1), 50.5), math.radians(-109.848439), math.radians(-70.151561)),  # 6
    Part.LineSegment(App.Vector(117.146428, -47.5, 0), App.Vector(182.853572, -47.5, 0)),  # 7
    Part.ArcOfCircle(Part.Circle(App.Vector(200, 0, 0), App.Vector(0, 0, 1), 50.5), math.radians(-109.848439), math.radians(-70.151561)),  # 8
    Part.LineSegment(App.Vector(217.146428, -47.5, 0), App.Vector(282.853572, -47.5, 0)),  # 9
    Part.ArcOfCircle(Part.Circle(App.Vector(300, 0, 0), App.Vector(0, 0, 1), 50.5), math.radians(-109.848439), math.radians(-70.151561)),  # 10
    Part.LineSegment(App.Vector(317.146428, -47.5, 0), App.Vector(348.814341, -47.5, 0)),  # 11
    Part.LineSegment(App.Vector(348.814341, -47.5, 0), App.Vector(348.814341, -12.938707, 0)),  # 12
    Part.ArcOfCircle(Part.Circle(App.Vector(300, 0, 0), App.Vector(0, 0, 1), 50.5), math.radians(-14.845415), math.radians(14.845415)),  # 13
    Part.LineSegment(App.Vector(348.814341, 12.938707, 0), App.Vector(348.814341, 47.5, 0)),  # 14
    Part.LineSegment(App.Vector(348.814341, 47.5, 0), App.Vector(317.146428, 47.5, 0)),  # 15
    Part.ArcOfCircle(Part.Circle(App.Vector(300, 0, 0), App.Vector(0, 0, 1), 50.5), math.radians(70.151561), math.radians(109.848439)),  # 16
    Part.LineSegment(App.Vector(282.853572, 47.5, 0), App.Vector(217.146428, 47.5, 0)),  # 17
    Part.ArcOfCircle(Part.Circle(App.Vector(200, 0, 0), App.Vector(0, 0, 1), 50.5), math.radians(70.151561), math.radians(109.848439)),  # 18
    Part.LineSegment(App.Vector(182.853572, 47.5, 0), App.Vector(117.146428, 47.5, 0)),  # 19
    Part.ArcOfCircle(Part.Circle(App.Vector(100, 0, 0), App.Vector(0, 0, 1), 50.5), math.radians(70.151561), math.radians(109.848439)),  # 20
    Part.LineSegment(App.Vector(82.853572, 47.5, 0), App.Vector(17.146428, 47.5, 0)),  # 21
    Part.ArcOfCircle(Part.Circle(App.Vector(0, 0, 0), App.Vector(0, 0, 1), 50.5), math.radians(70.151561), math.radians(109.848439)),  # 22
    Part.LineSegment(App.Vector(-17.146428, 47.5, 0), App.Vector(-48.814341, 47.5, 0)),  # 23
], False)
sketch2.addConstraint([
    Sketcher.Constraint("Coincident", 0, 2, 1, 1),
    Sketcher.Constraint("Coincident", 1, 2, 2, 1),
    Sketcher.Constraint("Coincident", 2, 2, 3, 1),
    Sketcher.Constraint("Coincident", 3, 2, 4, 1),
    Sketcher.Constraint("Coincident", 4, 2, 5, 1),
    Sketcher.Constraint("Coincident", 5, 2, 6, 1),
    Sketcher.Constraint("Coincident", 6, 2, 7, 1),
    Sketcher.Constraint("Coincident", 7, 2, 8, 1),
    Sketcher.Constraint("Coincident", 8, 2, 9, 1),
    Sketcher.Constraint("Coincident", 9, 2, 10, 1),
    Sketcher.Constraint("Coincident", 10, 2, 11, 1),
    Sketcher.Constraint("Coincident", 11, 2, 12, 1),
    Sketcher.Constraint("Coincident", 12, 2, 13, 1),
    Sketcher.Constraint("Coincident", 13, 2, 14, 1),
    Sketcher.Constraint("Coincident", 14, 2, 15, 1),
    Sketcher.Constraint("Coincident", 15, 2, 16, 1),
    Sketcher.Constraint("Coincident", 16, 2, 17, 1),
    Sketcher.Constraint("Coincident", 17, 2, 18, 1),
    Sketcher.Constraint("Coincident", 18, 2, 19, 1),
    Sketcher.Constraint("Coincident", 19, 2, 20, 1),
    Sketcher.Constraint("Coincident", 20, 2, 21, 1),
    Sketcher.Constraint("Coincident", 21, 2, 22, 1),
    Sketcher.Constraint("Coincident", 22, 2, 23, 1),
    Sketcher.Constraint("Coincident", 23, 2, 0, 1),
    Sketcher.Constraint("Vertical", 0),
    Sketcher.Constraint("Vertical", 2),
    Sketcher.Constraint("Horizontal", 3),
    Sketcher.Constraint("Horizontal", 5),
    Sketcher.Constraint("Horizontal", 7),
    Sketcher.Constraint("Horizontal", 9),
    Sketcher.Constraint("Horizontal", 11),
    Sketcher.Constraint("Vertical", 12),
    Sketcher.Constraint("Vertical", 14),
    Sketcher.Constraint("Horizontal", 15),
    Sketcher.Constraint("Horizontal", 17),
    Sketcher.Constraint("Horizontal", 19),
    Sketcher.Constraint("Horizontal", 21),
    Sketcher.Constraint("Horizontal", 23),
    Sketcher.Constraint("Coincident", 1, 3, -1, 1),
    Sketcher.Constraint("Coincident", 4, 3, -1, 1),
    Sketcher.Constraint("Coincident", 22, 3, -1, 1),
    Sketcher.Constraint("Coincident", 13, 3, 10, 3),
    Sketcher.Constraint("Coincident", 16, 3, 10, 3),
    Sketcher.Constraint("Coincident", 18, 3, 8, 3),
    Sketcher.Constraint("Coincident", 20, 3, 6, 3),
    Sketcher.Constraint("Equal", 1, 4),
    Sketcher.Constraint("Equal", 4, 6),
    Sketcher.Constraint("Equal", 6, 8),
    Sketcher.Constraint("Equal", 8, 10),
    Sketcher.Constraint("Equal", 10, 13),
    Sketcher.Constraint("Equal", 13, 16),
    Sketcher.Constraint("Equal", 16, 18),
    Sketcher.Constraint("Equal", 18, 20),
    Sketcher.Constraint("Equal", 20, 22),
    Sketcher.Constraint("Symmetric", 12, 2, 13, 2, -1),
    Sketcher.Constraint("Symmetric", 8, 2, 17, 2, -1),
    Sketcher.Constraint("Symmetric", 6, 2, 19, 2, -1),
    Sketcher.Constraint("Symmetric", 2, 2, 23, 2, -1),
    Sketcher.Constraint("Horizontal", 3, 2, 4, 2),
    Sketcher.Constraint("Horizontal", 5, 2, 6, 2),
    Sketcher.Constraint("Horizontal", 7, 2, 8, 2),
    Sketcher.Constraint("Horizontal", 9, 2, 10, 2),
    Sketcher.Constraint("Horizontal", 1, 2, 12, 2),
    Sketcher.Constraint("Horizontal", 15, 2, 16, 2),
    Sketcher.Constraint("Horizontal", 19, 2, 20, 2),
    Sketcher.Constraint("Equal", 5, 7),
    Sketcher.Constraint("Equal", 7, 9),
    Sketcher.Constraint("Radius", 1, 50.5),
    Sketcher.Constraint("DistanceX", -1, 1, 6, 3, 100.0),
    Sketcher.Constraint("DistanceY", 8, 2, 17, 2, 95.0),
    Sketcher.Constraint("DistanceX", 3, 1, 3, 2, 31.667913),
])
pocket1 = body.newObject("PartDesign::Pocket", "Pocket")
pocket1.Profile = sketch2
pocket1.Length = 200

# Sketch on YZ plane
sketch3 = body.newObject("Sketcher::SketchObject", "Sketch002")
sketch3.AttachmentSupport = (doc.getObject("YZ_Plane"), [""])
sketch3.MapMode = "FlatFace"
sketch3.AttachmentOffset = App.Placement(App.Vector(0, 0, -58.814341), App.Rotation())
sketch3.addGeometry(Part.Circle(App.Vector(-218.855012, 0, 0), App.Vector(0, 0, 1), 18.503), False)
sketch3.addConstraint([
    Sketcher.Constraint("PointOnObject", 0, 3, -1),
    Sketcher.Constraint("Diameter", 0, 37.006),
    Sketcher.Constraint("DistanceX", 0, 3, -1, 1, 218.855012),
])
pocket2 = body.newObject("PartDesign::Pocket", "Pocket001")
pocket2.Profile = sketch3
pocket2.Length = 1000
pocket2.Midplane = True

# Sketch on XZ plane
sketch4 = body.newObject("Sketcher::SketchObject", "Sketch003")
sketch4.AttachmentSupport = (doc.getObject("XZ_Plane"), [""])
sketch4.MapMode = "FlatFace"
sketch4.addGeometry([
    Part.LineSegment(App.Vector(-58.814341, 14.181795, 0), App.Vector(-58.814341, -14.181795, 0)),
    Part.ArcOfCircle(Part.Circle(App.Vector(0, 0, 0), App.Vector(0, 0, 1), 60.5), math.radians(166.443163), math.radians(193.556837)),
    Part.LineSegment(App.Vector(358.814341, -14.181795, 0), App.Vector(358.814341, 14.181795, 0)),
    Part.ArcOfCircle(Part.Circle(App.Vector(300, 0, 0), App.Vector(0, 0, 1), 60.5), math.radians(-13.556837), math.radians(13.556837)),
], False)
sketch4.addConstraint([
    Sketcher.Constraint("Coincident", 0, 1, 1, 1),
    Sketcher.Constraint("Coincident", 1, 2, 0, 2),
    Sketcher.Constraint("Coincident", 2, 1, 3, 1),
    Sketcher.Constraint("Coincident", 3, 2, 2, 2),
    Sketcher.Constraint("Vertical", 0),
    Sketcher.Constraint("Vertical", 2),
    Sketcher.Constraint("Coincident", 1, 3, -1, 1),
    Sketcher.Constraint("Equal", 1, 3),
    Sketcher.Constraint("PointOnObject", 3, 3, -1),
    Sketcher.Constraint("Horizontal", 1, 2, 2, 1),
    Sketcher.Constraint("Radius", 1, 60.5),
    Sketcher.Constraint("DistanceX", -1, 1, 3, 3, 300.0),
    Sketcher.Constraint("DistanceY", 0, 2, 0, 1, 28.363591),
])
pocket3 = body.newObject("PartDesign::Pocket", "Pocket002")
pocket3.Profile = sketch4
pocket3.Length = 300
pocket3.Reversed = True

doc.recompute()
